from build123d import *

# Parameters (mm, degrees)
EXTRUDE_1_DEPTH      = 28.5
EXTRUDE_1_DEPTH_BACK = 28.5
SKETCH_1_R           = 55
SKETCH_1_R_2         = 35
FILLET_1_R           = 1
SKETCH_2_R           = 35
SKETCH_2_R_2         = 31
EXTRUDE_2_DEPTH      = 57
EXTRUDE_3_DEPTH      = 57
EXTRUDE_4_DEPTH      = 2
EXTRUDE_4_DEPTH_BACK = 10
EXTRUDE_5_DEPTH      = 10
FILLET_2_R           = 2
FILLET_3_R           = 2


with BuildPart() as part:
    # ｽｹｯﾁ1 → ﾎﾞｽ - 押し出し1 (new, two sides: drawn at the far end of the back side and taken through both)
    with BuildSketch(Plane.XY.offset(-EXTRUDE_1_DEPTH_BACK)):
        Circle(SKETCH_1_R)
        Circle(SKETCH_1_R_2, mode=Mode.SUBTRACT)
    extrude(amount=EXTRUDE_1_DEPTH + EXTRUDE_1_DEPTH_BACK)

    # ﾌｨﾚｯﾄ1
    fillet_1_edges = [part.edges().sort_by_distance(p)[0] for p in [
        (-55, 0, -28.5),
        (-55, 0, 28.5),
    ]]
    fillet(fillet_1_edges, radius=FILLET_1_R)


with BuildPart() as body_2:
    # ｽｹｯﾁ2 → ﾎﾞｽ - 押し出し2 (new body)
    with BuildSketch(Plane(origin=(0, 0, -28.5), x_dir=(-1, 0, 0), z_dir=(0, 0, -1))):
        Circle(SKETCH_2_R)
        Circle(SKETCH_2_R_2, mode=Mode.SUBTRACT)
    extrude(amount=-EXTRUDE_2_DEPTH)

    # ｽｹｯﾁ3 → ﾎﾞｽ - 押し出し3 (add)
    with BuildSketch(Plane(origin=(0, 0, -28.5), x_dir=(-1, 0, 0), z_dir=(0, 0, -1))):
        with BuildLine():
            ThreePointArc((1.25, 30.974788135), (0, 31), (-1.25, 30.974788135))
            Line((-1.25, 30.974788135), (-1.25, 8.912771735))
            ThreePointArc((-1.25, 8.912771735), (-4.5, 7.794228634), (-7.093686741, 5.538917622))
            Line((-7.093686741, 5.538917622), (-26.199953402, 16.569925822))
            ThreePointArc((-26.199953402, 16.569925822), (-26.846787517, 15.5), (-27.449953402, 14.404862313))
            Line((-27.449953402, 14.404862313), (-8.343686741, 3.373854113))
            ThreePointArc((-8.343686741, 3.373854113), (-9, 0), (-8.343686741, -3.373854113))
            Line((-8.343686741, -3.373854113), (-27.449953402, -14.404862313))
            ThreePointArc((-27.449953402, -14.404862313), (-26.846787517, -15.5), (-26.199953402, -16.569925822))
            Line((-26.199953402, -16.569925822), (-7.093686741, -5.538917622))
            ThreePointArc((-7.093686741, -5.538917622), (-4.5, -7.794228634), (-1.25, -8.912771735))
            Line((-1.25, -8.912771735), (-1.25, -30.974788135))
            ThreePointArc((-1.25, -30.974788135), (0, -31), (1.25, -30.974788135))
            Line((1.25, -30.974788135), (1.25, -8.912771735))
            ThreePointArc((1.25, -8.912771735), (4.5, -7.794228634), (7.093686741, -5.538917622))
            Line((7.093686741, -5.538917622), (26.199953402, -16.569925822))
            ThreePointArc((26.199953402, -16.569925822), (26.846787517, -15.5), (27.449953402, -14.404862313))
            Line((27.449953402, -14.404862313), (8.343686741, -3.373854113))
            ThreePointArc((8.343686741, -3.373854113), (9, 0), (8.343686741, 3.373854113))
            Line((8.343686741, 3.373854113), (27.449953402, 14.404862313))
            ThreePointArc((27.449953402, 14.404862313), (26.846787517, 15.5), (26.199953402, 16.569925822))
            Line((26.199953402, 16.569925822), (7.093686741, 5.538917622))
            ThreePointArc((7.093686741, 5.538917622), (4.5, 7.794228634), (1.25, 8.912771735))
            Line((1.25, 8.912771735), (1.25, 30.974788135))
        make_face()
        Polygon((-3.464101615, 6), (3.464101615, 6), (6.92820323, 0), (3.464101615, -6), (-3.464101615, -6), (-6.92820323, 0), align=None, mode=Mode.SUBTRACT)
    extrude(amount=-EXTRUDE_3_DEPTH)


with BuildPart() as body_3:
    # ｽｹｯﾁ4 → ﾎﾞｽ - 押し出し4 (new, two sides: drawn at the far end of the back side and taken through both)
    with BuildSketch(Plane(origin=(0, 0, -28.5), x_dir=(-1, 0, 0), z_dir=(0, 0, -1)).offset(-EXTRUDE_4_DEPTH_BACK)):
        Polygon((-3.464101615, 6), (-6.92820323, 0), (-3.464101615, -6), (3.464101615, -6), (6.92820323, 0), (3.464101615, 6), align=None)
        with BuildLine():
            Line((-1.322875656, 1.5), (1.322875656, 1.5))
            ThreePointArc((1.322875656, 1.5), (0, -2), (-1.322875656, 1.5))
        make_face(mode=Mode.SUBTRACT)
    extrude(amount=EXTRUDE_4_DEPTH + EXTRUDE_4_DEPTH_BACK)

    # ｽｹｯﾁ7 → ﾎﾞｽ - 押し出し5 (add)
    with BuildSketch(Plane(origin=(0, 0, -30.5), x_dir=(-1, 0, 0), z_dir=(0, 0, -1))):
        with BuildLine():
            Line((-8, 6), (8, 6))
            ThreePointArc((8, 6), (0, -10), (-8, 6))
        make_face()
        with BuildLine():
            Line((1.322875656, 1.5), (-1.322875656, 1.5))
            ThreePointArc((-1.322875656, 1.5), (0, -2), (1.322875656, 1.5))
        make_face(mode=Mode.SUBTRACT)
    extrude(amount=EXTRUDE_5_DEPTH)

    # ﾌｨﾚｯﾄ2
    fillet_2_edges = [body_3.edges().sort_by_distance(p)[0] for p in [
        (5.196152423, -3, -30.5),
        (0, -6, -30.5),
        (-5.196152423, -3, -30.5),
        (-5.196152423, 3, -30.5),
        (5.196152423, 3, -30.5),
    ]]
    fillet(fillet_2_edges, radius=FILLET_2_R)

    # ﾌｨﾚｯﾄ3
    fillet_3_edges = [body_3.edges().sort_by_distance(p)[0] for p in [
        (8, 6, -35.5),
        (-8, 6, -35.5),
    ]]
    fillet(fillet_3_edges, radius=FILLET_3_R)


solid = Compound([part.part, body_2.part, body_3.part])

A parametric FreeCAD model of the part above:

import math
import FreeCAD as App
import Part
import Sketcher
from FreeCAD import Vector
Q = App.Units.Quantity


def edges_at(feature, points):
    """Names of the edges that pass closest to the given points."""
    edges = feature.Shape.Edges
    near = lambda p: min(range(len(edges)), key=lambda i: edges[i].distToShape(Part.Vertex(*p))[0])
    return sorted({f"Edge{near(p) + 1}" for p in points})


def add_polygon(sketch, points):
    """Adds a closed chain of lines whose ends are joined by coincident constraints."""
    first, n = sketch.GeometryCount, len(points)
    for a, b in zip(points, points[1:] + points[:1]):
        sketch.addGeometry(Part.LineSegment(App.Vector(*a, 0), App.Vector(*b, 0)), False)
    for i in range(n):
        sketch.addConstraint(Sketcher.Constraint("Coincident", first + i, 2, first + (i + 1) % n, 1))

doc = App.newDocument("Part")
body = doc.addObject("PartDesign::Body", "Body")

sketch1 = doc.addObject("Sketcher::SketchObject", "Sketch")
body.addObject(sketch1)
sketch1.AttachmentSupport = (doc.XY_Plane, [""])
sketch1.MapMode = "FlatFace"
sketch1.addGeometry(Part.Circle(Vector(0, 0, 0), Vector(0, 0, 1), 55), False)
sketch1.addGeometry(Part.Circle(Vector(0, 0, 0), Vector(0, 0, 1), 35), False)
sketch1.addConstraint(Sketcher.Constraint("Coincident", 0, 3, -1, 1))
sketch1.addConstraint(Sketcher.Constraint("Coincident", 1, 3, -1, 1))
sketch1.addConstraint(Sketcher.Constraint("Diameter", 0, 110.0))
sketch1.addConstraint(Sketcher.Constraint("Diameter", 1, 70.0))
pad1 = doc.addObject("PartDesign::Pad", "Pad")
body.addObject(pad1)
pad1.Profile = sketch1
pad1.Type = "TwoLengths"
pad1.Length = 28.5
pad1.Length2 = 28.5
doc.recompute()

fillet = doc.addObject("PartDesign::Fillet", "Fillet")
body.addObject(fillet)
fillet.Base = (pad1, edges_at(pad1, [(-55, 0, -28.5), (-55, 0, 28.5)]))
fillet.Radius = 1
body2 = doc.addObject("PartDesign::Body", "Body001")

sketch2 = doc.addObject("Sketcher::SketchObject", "Sketch001")
body2.addObject(sketch2)
sketch2.AttachmentSupport = (doc.getObject("XY_Plane001"), [""])
sketch2.MapMode = "FlatFace"
sketch2.AttachmentOffset = App.Placement(Vector(0, 0, -28.5), App.Rotation())
sketch2.addGeometry(Part.Circle(Vector(0, 0, 0), Vector(0, 0, 1), 35), False)
sketch2.addGeometry(Part.Circle(Vector(0, 0, 0), Vector(0, 0, 1), 31), False)
sketch2.addConstraint(Sketcher.Constraint("Coincident", 0, 3, -1, 1))
sketch2.addConstraint(Sketcher.Constraint("Coincident", 1, 3, -1, 1))
sketch2.addConstraint(Sketcher.Constraint("Diameter", 0, 70.0))
sketch2.addConstraint(Sketcher.Constraint("Diameter", 1, 62.0))
pad2 = doc.addObject("PartDesign::Pad", "Pad001")
body2.addObject(pad2)
pad2.Profile = sketch2
pad2.Length = 57

sketch3 = doc.addObject("Sketcher::SketchObject", "Sketch002")
body2.addObject(sketch3)
sketch3.AttachmentSupport = (doc.getObject("XY_Plane001"), [""])
sketch3.MapMode = "FlatFace"
sketch3.AttachmentOffset = App.Placement(Vector(0, 0, -28.5), App.Rotation())
sketch3.addGeometry(Part.ArcOfCircle(Part.Circle(Vector(0, 0, 0), Vector(0, 0, 1), 31), math.radians(87.69), math.radians(92.31)), False)
sketch3.addGeometry(Part.LineSegment(Vector(1.2, 31, 0), Vector(1.2, 8.9, 0)), False)
sketch3.addGeometry(Part.ArcOfCircle(Part.Circle(Vector(0, 0, 0), Vector(0, 0, 1), 9), math.radians(38), math.radians(82)), False)
sketch3.addGeometry(Part.LineSegment(Vector(7.1, 5.5, 0), Vector(26.2, 16.6, 0)), False)
sketch3.addGeometry(Part.ArcOfCircle(Part.Circle(Vector(0, 0, 0), Vector(0, 0, 1), 31), math.radians(27.69), math.radians(32.31)), False)
sketch3.addGeometry(Part.LineSegment(Vector(27.4, 14.4, 0), Vector(8.3, 3.4, 0)), False)
sketch3.addGeometry(Part.ArcOfCircle(Part.Circle(Vector(0, 0, 0), Vector(0, 0, 1), 9), math.radians(-22), math.radians(22)), False)
sketch3.addGeometry(Part.LineSegment(Vector(8.3, -3.4, 0), Vector(27.4, -14.4, 0)), False)
sketch3.addGeometry(Part.ArcOfCircle(Part.Circle(Vector(0, 0, 0), Vector(0, 0, 1), 31), math.radians(-32.31), math.radians(-27.69)), False)
sketch3.addGeometry(Part.LineSegment(Vector(26.2, -16.6, 0), Vector(7.1, -5.5, 0)), False)
sketch3.addGeometry(Part.ArcOfCircle(Part.Circle(Vector(0, 0, 0), Vector(0, 0, 1), 9), math.radians(-82), math.radians(-38)), False)
sketch3.addGeometry(Part.LineSegment(Vector(1.2, -8.9, 0), Vector(1.2, -31, 0)), False)
sketch3.addGeometry(Part.ArcOfCircle(Part.Circle(Vector(0, 0, 0), Vector(0, 0, 1), 31), math.radians(-92.31), math.radians(-87.69)), False)
sketch3.addGeometry(Part.LineSegment(Vector(-1.2, -31, 0), Vector(-1.2, -8.9, 0)), False)
sketch3.addGeometry(Part.ArcOfCircle(Part.Circle(Vector(0, 0, 0), Vector(0, 0, 1), 9), math.radians(-142), math.radians(-98)), False)
sketch3.addGeometry(Part.LineSegment(Vector(-7.1, -5.5, 0), Vector(-26.2, -16.6, 0)), False)
sketch3.addGeometry(Part.ArcOfCircle(Part.Circle(Vector(0, 0, 0), Vector(0, 0, 1), 31), math.radians(-152.31), math.radians(-147.69)), False)
sketch3.addGeometry(Part.LineSegment(Vector(-27.4, -14.4, 0), Vector(-8.3, -3.4, 0)), False)
sketch3.addGeometry(Part.ArcOfCircle(Part.Circle(Vector(0, 0, 0), Vector(0, 0, 1), 9), math.radians(158), math.radians(202)), False)
sketch3.addGeometry(Part.LineSegment(Vector(-8.3, 3.4, 0), Vector(-27.4, 14.4, 0)), False)
sketch3.addGeometry(Part.ArcOfCircle(Part.Circle(Vector(0, 0, 0), Vector(0, 0, 1), 31), math.radians(147.69), math.radians(152.31)), False)
sketch3.addGeometry(Part.LineSegment(Vector(-26.2, 16.6, 0), Vector(-7.1, 5.5, 0)), False)
sketch3.addGeometry(Part.ArcOfCircle(Part.Circle(Vector(0, 0, 0), Vector(0, 0, 1), 9), math.radians(98), math.radians(142)), False)
sketch3.addGeometry(Part.LineSegment(Vector(-1.2, 8.9, 0), Vector(-1.2, 31, 0)), False)
add_polygon(sketch3, [(6.9, 0), (3.5, 6), (-3.5, 6), (-6.9, 0), (-3.5, -6), (3.5, -6)])
sketch3.addConstraint(Sketcher.Constraint("Coincident", 0, 1, 1, 1))
sketch3.addConstraint(Sketcher.Constraint("Coincident", 1, 2, 2, 2))
sketch3.addConstraint(Sketcher.Constraint("Coincident", 2, 1, 3, 1))
sketch3.addConstraint(Sketcher.Constraint("Coincident", 3, 2, 4, 2))
sketch3.addConstraint(Sketcher.Constraint("Coincident", 4, 1, 5, 1))
sketch3.addConstraint(Sketcher.Constraint("Coincident", 5, 2, 6, 2))
sketch3.addConstraint(Sketcher.Constraint("Coincident", 6, 1, 7, 1))
sketch3.addConstraint(Sketcher.Constraint("Coincident", 7, 2, 8, 2))
sketch3.addConstraint(Sketcher.Constraint("Coincident", 8, 1, 9, 1))
sketch3.addConstraint(Sketcher.Constraint("Coincident", 9, 2, 10, 2))
sketch3.addConstraint(Sketcher.Constraint("Coincident", 10, 1, 11, 1))
sketch3.addConstraint(Sketcher.Constraint("Coincident", 11, 2, 12, 2))
sketch3.addConstraint(Sketcher.Constraint("Coincident", 12, 1, 13, 1))
sketch3.addConstraint(Sketcher.Constraint("Coincident", 13, 2, 14, 2))
sketch3.addConstraint(Sketcher.Constraint("Coincident", 14, 1, 15, 1))
sketch3.addConstraint(Sketcher.Constraint("Coincident", 15, 2, 16, 2))
sketch3.addConstraint(Sketcher.Constraint("Coincident", 16, 1, 17, 1))
sketch3.addConstraint(Sketcher.Constraint("Coincident", 17, 2, 18, 2))
sketch3.addConstraint(Sketcher.Constraint("Coincident", 18, 1, 19, 1))
sketch3.addConstraint(Sketcher.Constraint("Coincident", 19, 2, 20, 2))
sketch3.addConstraint(Sketcher.Constraint("Coincident", 20, 1, 21, 1))
sketch3.addConstraint(Sketcher.Constraint("Coincident", 21, 2, 22, 2))
sketch3.addConstraint(Sketcher.Constraint("Coincident", 22, 1, 23, 1))
sketch3.addConstraint(Sketcher.Constraint("Coincident", 23, 2, 0, 2))
sketch3.addConstraint(Sketcher.Constraint("Vertical", 1))
sketch3.addConstraint(Sketcher.Constraint("Vertical", 11))
sketch3.addConstraint(Sketcher.Constraint("Vertical", 13))
sketch3.addConstraint(Sketcher.Constraint("Vertical", 23))
sketch3.addConstraint(Sketcher.Constraint("Horizontal", 25))
sketch3.addConstraint(Sketcher.Constraint("Horizontal", 28))
sketch3.addConstraint(Sketcher.Constraint("Coincident", 0, 3, -1, 1))
sketch3.addConstraint(Sketcher.Constraint("Coincident", 2, 3, -1, 1))
sketch3.addConstraint(Sketcher.Constraint("Coincident", 4, 3, -1, 1))
sketch3.addConstraint(Sketcher.Constraint("Coincident", 6, 3, -1, 1))
sketch3.addConstraint(Sketcher.Constraint("Coincident", 8, 3, -1, 1))
sketch3.addConstraint(Sketcher.Constraint("Coincident", 10, 3, -1, 1))
sketch3.addConstraint(Sketcher.Constraint("Coincident", 12, 3, -1, 1))
sketch3.addConstraint(Sketcher.Constraint("Coincident", 14, 3, -1, 1))
sketch3.addConstraint(Sketcher.Constraint("Coincident", 16, 3, -1, 1))
sketch3.addConstraint(Sketcher.Constraint("Coincident", 18, 3, -1, 1))
sketch3.addConstraint(Sketcher.Constraint("Coincident", 20, 3, -1, 1))
sketch3.addConstraint(Sketcher.Constraint("Coincident", 22, 3, -1, 1))
sketch3.addConstraint(Sketcher.Constraint("Equal", 0, 4))
sketch3.addConstraint(Sketcher.Constraint("Equal", 2, 6))
sketch3.addConstraint(Sketcher.Constraint("Equal", 4, 8))
sketch3.addConstraint(Sketcher.Constraint("Equal", 6, 10))
sketch3.addConstraint(Sketcher.Constraint("Equal", 8, 12))
sketch3.addConstraint(Sketcher.Constraint("Equal", 10, 14))
sketch3.addConstraint(Sketcher.Constraint("Equal", 12, 16))
sketch3.addConstraint(Sketcher.Constraint("Equal", 14, 18))
sketch3.addConstraint(Sketcher.Constraint("Equal", 16, 20))
sketch3.addConstraint(Sketcher.Constraint("Equal", 18, 22))
sketch3.addConstraint(Sketcher.Constraint("Symmetric", 24, 2, 27, 2, -1, 1))
sketch3.addConstraint(Sketcher.Constraint("Symmetric", 26, 2, 29, 2, -1, 1))
sketch3.addConstraint(Sketcher.Constraint("PointOnObject", 26, 2, -1))
sketch3.addConstraint(Sketcher.Constraint("Parallel", 3, 5))
sketch3.addConstraint(Sketcher.Constraint("Parallel", 7, 9))
sketch3.addConstraint(Sketcher.Constraint("Parallel", 5, 15))
sketch3.addConstraint(Sketcher.Constraint("Parallel", 15, 17))
sketch3.addConstraint(Sketcher.Constraint("Parallel", 9, 19))
sketch3.addConstraint(Sketcher.Constraint("Parallel", 19, 21))
sketch3.addConstraint(Sketcher.Constraint("Perpendicular", 17, 24))
sketch3.addConstraint(Sketcher.Constraint("Perpendicular", 21, 26))
sketch3.addConstraint(Sketcher.Constraint("Parallel", 26, 29))
sketch3.addConstraint(Sketcher.Constraint("Horizontal", 11, 2, 12, 1))
sketch3.addConstraint(Sketcher.Constraint("Horizontal", 9, 2, 14, 1))
sketch3.addConstraint(Sketcher.Constraint("Horizontal", 8, 1, 15, 2))
sketch3.addConstraint(Sketcher.Constraint("Horizontal", 7, 2, 16, 1))
sketch3.addConstraint(Sketcher.Constraint("Horizontal", 5, 2, 18, 1))
sketch3.addConstraint(Sketcher.Constraint("Horizontal", 3, 2, 20, 1))
sketch3.addConstraint(Sketcher.Constraint("Horizontal", 1, 2, 22, 1))
sketch3.addConstraint(Sketcher.Constraint("Vertical", 5, 2, 6, 1))
sketch3.addConstraint(Sketcher.Constraint("Vertical", 3, 2, 8, 1))
sketch3.addConstraint(Sketcher.Constraint("Vertical", 1, 2, 10, 1))
sketch3.addConstraint(Sketcher.Constraint("Equal", 3, 5))
sketch3.addConstraint(Sketcher.Constraint("Radius", 0, 31.0))
sketch3.addConstraint(Sketcher.Constraint("Radius", 2, 9.0))
sketch3.addConstraint(Sketcher.Constraint("Angle", 3, Q("30 deg")))
sketch3.addConstraint(Sketcher.Constraint("DistanceY", -1, 1, 24, 2, 6.0))
sketch3.addConstraint(Sketcher.Constraint("DistanceX", 12, 1, 11, 2, 2.5))
sketch3.addConstraint(Sketcher.Constraint("DistanceX", 3, 2, 4, 1, 1.25))
sketch3.addConstraint(Sketcher.Constraint("DistanceX", -1, 1, 24, 2, 3.464102))
pad3 = doc.addObject("PartDesign::Pad", "Pad002")
body2.addObject(pad3)
pad3.Profile = sketch3
pad3.Length = 57
body3 = doc.addObject("PartDesign::Body", "Body002")

sketch4 = doc.addObject("Sketcher::SketchObject", "Sketch003")
body3.addObject(sketch4)
sketch4.AttachmentSupport = (doc.getObject("XY_Plane002"), [""])
sketch4.MapMode = "FlatFace"
sketch4.AttachmentOffset = App.Placement(Vector(0, 0, -28.5), App.Rotation())
add_polygon(sketch4, [(3.5, 6), (6.9, 0), (3.5, -6), (-3.5, -6), (-6.9, 0), (-3.5, 6)])
sketch4.addGeometry(Part.ArcOfCircle(Part.Circle(Vector(0, 0, 0), Vector(0, 0, 1), 2), math.radians(131), math.radians(409)), False)
sketch4.addGeometry(Part.LineSegment(Vector(1.3, 1.5, 0), Vector(-1.3, 1.5, 0)), False)
sketch4.addConstraint(Sketcher.Constraint("Coincident", 6, 1, 7, 2))
sketch4.addConstraint(Sketcher.Constraint("Coincident", 7, 1, 6, 2))
sketch4.addConstraint(Sketcher.Constraint("Horizontal", 2))
sketch4.addConstraint(Sketcher.Constraint("Horizontal", 5))
sketch4.addConstraint(Sketcher.Constraint("Horizontal", 7))
sketch4.addConstraint(Sketcher.Constraint("Coincident", 6, 3, -1, 1))
sketch4.addConstraint(Sketcher.Constraint("Symmetric", 0, 2, 3, 2, -1, 1))
sketch4.addConstraint(Sketcher.Constraint("Symmetric", 1, 2, 4, 2, -1, 1))
sketch4.addConstraint(Sketcher.Constraint("PointOnObject", 0, 2, -1))
sketch4.addConstraint(Sketcher.Constraint("Parallel", 0, 3))
sketch4.addConstraint(Sketcher.Constraint("Vertical", 2, 2, 4, 2))
sketch4.addConstraint(Sketcher.Constraint("Radius", 6, 2.0))
sketch4.addConstraint(Sketcher.Constraint("Angle", 0, Q("-60 deg")))
sketch4.addConstraint(Sketcher.Constraint("DistanceY", 1, 2, -1, 1, 6.0))
sketch4.addConstraint(Sketcher.Constraint("DistanceY", -1, 1, 6, 1, 1.5))
sketch4.addConstraint(Sketcher.Constraint("DistanceX", -1, 1, 1, 2, 3.464102))
pad4 = doc.addObject("PartDesign::Pad", "Pad003")
body3.addObject(pad4)
pad4.Profile = sketch4
pad4.Type = "TwoLengths"
pad4.Length = 2
pad4.Length2 = 10
pad4.Reversed = True

sketch5 = doc.addObject("Sketcher::SketchObject", "Sketch004")
body3.addObject(sketch5)
sketch5.AttachmentSupport = (doc.getObject("XY_Plane002"), [""])
sketch5.MapMode = "FlatFace"
sketch5.AttachmentOffset = App.Placement(Vector(0, 0, -30.5), App.Rotation())
sketch5.addGeometry(Part.LineSegment(Vector(-8, 6, 0), Vector(8, 6, 0)), False)
sketch5.addGeometry(Part.ArcOfCircle(Part.Circle(Vector(0, 0, 0), Vector(0, 0, 1), 10), math.radians(143), math.radians(397)), False)
sketch5.addGeometry(Part.ArcOfCircle(Part.Circle(Vector(0, 0, 0), Vector(0, 0, 1), 2), math.radians(131), math.radians(409)), False)
sketch5.addGeometry(Part.LineSegment(Vector(1.3, 1.5, 0), Vector(-1.3, 1.5, 0)), False)
sketch5.addConstraint(Sketcher.Constraint("Coincident", 0, 1, 1, 1))
sketch5.addConstraint(Sketcher.Constraint("Coincident", 1, 2, 0, 2))
sketch5.addConstraint(Sketcher.Constraint("Coincident", 2, 1, 3, 2))
sketch5.addConstraint(Sketcher.Constraint("Coincident", 3, 1, 2, 2))
sketch5.addConstraint(Sketcher.Constraint("Horizontal", 0))
sketch5.addConstraint(Sketcher.Constraint("Horizontal", 3))
sketch5.addConstraint(Sketcher.Constraint("Coincident", 1, 3, -1, 1))
sketch5.addConstraint(Sketcher.Constraint("Coincident", 2, 3, -1, 1))
sketch5.addConstraint(Sketcher.Constraint("Radius", 1, 10.0))
sketch5.addConstraint(Sketcher.Constraint("Radius", 2, 2.0))
sketch5.addConstraint(Sketcher.Constraint("DistanceX", 0, 1, 0, 2, 16.0))
sketch5.addConstraint(Sketcher.Constraint("DistanceY", -1, 1, 2, 1, 1.5))
pad5 = doc.addObject("PartDesign::Pad", "Pad004")
body3.addObject(pad5)
pad5.Profile = sketch5
pad5.Length = 10
pad5.Reversed = True
doc.recompute()

fillet2 = doc.addObject("PartDesign::Fillet", "Fillet001")
body3.addObject(fillet2)
fillet2.Base = (pad5, edges_at(pad5, [
    (5.196, -3, -30.5),
    (0, -6, -30.5),
    (-5.196, -3, -30.5),
    (-5.196, 3, -30.5),
    (5.196, 3, -30.5),
]))
fillet2.Radius = 2
doc.recompute()

fillet3 = doc.addObject("PartDesign::Fillet", "Fillet002")
body3.addObject(fillet3)
fillet3.Base = (fillet2, edges_at(fillet2, [(8, 6, -35.5), (-8, 6, -35.5)]))
fillet3.Radius = 2

doc.recompute()
